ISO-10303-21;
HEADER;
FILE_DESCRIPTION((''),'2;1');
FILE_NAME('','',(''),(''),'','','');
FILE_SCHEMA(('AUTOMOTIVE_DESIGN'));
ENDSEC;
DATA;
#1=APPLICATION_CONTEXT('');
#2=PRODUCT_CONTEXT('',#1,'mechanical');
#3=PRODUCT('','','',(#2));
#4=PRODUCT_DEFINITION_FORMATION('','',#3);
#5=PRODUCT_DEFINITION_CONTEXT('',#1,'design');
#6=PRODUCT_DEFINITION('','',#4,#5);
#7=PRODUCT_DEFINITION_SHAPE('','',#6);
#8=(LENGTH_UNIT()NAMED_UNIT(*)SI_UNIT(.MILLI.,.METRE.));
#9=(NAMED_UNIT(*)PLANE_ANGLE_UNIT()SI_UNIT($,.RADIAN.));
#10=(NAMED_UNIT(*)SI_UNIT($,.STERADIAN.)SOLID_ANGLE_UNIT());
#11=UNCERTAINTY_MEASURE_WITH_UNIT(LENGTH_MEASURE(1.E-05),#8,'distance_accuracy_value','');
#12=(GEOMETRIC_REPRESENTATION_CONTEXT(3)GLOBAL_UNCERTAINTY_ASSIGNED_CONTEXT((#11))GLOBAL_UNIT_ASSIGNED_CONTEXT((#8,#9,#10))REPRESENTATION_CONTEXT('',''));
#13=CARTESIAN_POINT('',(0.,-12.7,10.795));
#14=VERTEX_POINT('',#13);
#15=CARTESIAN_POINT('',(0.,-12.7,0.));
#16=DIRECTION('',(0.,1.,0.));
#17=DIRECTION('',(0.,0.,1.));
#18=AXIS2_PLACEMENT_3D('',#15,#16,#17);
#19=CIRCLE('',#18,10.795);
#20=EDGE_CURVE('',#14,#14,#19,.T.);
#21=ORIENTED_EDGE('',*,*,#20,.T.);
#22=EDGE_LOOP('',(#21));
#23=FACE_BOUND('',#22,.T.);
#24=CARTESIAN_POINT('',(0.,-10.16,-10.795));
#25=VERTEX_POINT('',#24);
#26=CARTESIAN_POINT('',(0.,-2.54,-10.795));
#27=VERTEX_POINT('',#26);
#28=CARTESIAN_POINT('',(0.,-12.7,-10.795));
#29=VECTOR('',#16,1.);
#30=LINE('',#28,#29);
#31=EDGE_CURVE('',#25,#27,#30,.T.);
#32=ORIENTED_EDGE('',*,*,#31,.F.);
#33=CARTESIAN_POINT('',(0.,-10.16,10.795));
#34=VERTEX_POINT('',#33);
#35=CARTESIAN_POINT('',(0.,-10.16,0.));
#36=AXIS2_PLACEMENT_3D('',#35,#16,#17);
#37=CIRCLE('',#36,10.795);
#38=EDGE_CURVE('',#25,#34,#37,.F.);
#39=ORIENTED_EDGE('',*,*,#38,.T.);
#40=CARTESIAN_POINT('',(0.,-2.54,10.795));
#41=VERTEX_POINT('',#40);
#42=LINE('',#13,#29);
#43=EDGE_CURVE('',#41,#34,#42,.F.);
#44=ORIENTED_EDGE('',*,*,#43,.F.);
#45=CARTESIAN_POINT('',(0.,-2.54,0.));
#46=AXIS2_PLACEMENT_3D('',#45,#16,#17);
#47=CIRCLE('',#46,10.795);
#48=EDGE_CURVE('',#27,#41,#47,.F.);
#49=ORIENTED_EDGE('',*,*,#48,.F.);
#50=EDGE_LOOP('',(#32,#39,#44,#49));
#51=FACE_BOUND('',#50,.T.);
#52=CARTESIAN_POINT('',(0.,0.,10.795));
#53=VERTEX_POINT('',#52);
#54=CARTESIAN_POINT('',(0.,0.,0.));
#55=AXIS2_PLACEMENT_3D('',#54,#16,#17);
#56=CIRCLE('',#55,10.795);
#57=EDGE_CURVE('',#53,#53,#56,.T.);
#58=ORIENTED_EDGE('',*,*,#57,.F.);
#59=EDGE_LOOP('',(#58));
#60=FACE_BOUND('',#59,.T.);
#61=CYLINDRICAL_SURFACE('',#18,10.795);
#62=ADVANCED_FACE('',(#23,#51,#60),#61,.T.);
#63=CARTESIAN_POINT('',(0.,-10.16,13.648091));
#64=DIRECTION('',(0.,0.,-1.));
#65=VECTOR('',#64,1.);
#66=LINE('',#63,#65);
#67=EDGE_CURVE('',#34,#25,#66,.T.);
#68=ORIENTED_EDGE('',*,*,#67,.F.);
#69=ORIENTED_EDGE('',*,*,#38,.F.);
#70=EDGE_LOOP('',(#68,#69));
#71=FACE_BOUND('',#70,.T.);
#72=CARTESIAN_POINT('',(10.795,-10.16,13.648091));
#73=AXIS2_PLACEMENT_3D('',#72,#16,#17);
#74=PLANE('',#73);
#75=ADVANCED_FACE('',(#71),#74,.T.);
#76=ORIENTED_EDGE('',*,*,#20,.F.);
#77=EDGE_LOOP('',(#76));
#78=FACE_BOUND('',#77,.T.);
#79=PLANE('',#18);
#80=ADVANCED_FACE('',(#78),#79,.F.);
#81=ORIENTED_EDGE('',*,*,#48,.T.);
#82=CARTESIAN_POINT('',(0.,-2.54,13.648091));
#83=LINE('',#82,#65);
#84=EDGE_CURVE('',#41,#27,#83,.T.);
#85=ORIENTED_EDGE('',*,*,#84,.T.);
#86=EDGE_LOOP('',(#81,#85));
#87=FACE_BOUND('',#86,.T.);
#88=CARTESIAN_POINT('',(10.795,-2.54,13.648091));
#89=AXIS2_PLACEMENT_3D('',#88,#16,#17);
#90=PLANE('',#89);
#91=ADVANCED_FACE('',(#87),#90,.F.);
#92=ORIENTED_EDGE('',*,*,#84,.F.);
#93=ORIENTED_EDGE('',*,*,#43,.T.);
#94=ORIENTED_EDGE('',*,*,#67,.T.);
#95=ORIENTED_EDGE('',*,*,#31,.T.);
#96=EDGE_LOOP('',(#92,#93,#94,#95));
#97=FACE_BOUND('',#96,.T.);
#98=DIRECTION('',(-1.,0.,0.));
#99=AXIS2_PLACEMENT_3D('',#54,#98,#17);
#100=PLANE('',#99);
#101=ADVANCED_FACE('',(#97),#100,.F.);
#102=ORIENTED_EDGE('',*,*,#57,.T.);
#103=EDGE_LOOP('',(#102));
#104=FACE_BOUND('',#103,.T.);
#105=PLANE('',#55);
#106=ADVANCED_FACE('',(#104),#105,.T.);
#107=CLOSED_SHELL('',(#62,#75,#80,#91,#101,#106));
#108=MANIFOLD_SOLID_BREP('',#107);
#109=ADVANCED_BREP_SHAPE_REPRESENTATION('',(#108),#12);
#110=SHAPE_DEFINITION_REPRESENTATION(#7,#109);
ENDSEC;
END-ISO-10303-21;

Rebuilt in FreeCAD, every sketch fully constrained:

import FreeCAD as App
import Part
import Sketcher

V = App.Vector
Q = App.Units.Quantity


def add_polygon(sketch, points):
    """Adds a closed chain of lines whose ends are joined by coincident constraints."""
    first, n = sketch.GeometryCount, len(points)
    for a, b in zip(points, points[1:] + points[:1]):
        sketch.addGeometry(Part.LineSegment(App.Vector(*a, 0), App.Vector(*b, 0)), False)
    for i in range(n):
        sketch.addConstraint(Sketcher.Constraint("Coincident", first + i, 2, first + (i + 1) % n, 1))

doc = App.newDocument("Part")
body = doc.addObject("PartDesign::Body", "Body")

# Sketch on XZ plane
sketch1 = body.newObject("Sketcher::SketchObject", "Sketch")
sketch1.AttachmentSupport = (doc.getObject("XZ_Plane"), [""])
sketch1.MapMode = "FlatFace"
sketch1.addGeometry(Part.Circle(V(0, 0, 0), V(0, 0, 1), 10.795), False)
sketch1.addConstraint([
    Sketcher.Constraint("Coincident", 0, 3, -1, 1),
    Sketcher.Constraint("Diameter", 0, Q("0.85 in")),
])
pad1 = body.newObject("PartDesign::Pad", "Pad")
pad1.Profile = sketch1
pad1.Length = Q("0.5 in")

# Sketch on YZ plane
sketch2 = body.newObject("Sketcher::SketchObject", "Sketch001")
sketch2.AttachmentSupport = (doc.getObject("YZ_Plane"), [""])
sketch2.MapMode = "FlatFace"
add_polygon(sketch2, [(-2.54, 13.648091), (-10.16, 13.648091), (-10.16, -11.791208), (-2.54, -11.791208)])  # lines 0-3
sketch2.addConstraint([
    Sketcher.Constraint("Horizontal", 0),
    Sketcher.Constraint("Vertical", 1),
    Sketcher.Constraint("Horizontal", 2),
    Sketcher.Constraint("Vertical", 3),
    Sketcher.Constraint("DistanceX", 0, 2, 0, 1, Q("0.3 in")),
    Sketcher.Constraint("DistanceX", 0, 2, -1, 1, Q("0.4 in")),
    Sketcher.Constraint("DistanceY", 1, 2, 1, 1, 25.439299),
    Sketcher.Constraint("DistanceY", -1, 1, 0, 2, 13.648091),
])
pocket1 = body.newObject("PartDesign::Pocket", "Pocket")
pocket1.Profile = sketch2
pocket1.Type = "ThroughAll"
pocket1.Reversed = True

doc.recompute()
